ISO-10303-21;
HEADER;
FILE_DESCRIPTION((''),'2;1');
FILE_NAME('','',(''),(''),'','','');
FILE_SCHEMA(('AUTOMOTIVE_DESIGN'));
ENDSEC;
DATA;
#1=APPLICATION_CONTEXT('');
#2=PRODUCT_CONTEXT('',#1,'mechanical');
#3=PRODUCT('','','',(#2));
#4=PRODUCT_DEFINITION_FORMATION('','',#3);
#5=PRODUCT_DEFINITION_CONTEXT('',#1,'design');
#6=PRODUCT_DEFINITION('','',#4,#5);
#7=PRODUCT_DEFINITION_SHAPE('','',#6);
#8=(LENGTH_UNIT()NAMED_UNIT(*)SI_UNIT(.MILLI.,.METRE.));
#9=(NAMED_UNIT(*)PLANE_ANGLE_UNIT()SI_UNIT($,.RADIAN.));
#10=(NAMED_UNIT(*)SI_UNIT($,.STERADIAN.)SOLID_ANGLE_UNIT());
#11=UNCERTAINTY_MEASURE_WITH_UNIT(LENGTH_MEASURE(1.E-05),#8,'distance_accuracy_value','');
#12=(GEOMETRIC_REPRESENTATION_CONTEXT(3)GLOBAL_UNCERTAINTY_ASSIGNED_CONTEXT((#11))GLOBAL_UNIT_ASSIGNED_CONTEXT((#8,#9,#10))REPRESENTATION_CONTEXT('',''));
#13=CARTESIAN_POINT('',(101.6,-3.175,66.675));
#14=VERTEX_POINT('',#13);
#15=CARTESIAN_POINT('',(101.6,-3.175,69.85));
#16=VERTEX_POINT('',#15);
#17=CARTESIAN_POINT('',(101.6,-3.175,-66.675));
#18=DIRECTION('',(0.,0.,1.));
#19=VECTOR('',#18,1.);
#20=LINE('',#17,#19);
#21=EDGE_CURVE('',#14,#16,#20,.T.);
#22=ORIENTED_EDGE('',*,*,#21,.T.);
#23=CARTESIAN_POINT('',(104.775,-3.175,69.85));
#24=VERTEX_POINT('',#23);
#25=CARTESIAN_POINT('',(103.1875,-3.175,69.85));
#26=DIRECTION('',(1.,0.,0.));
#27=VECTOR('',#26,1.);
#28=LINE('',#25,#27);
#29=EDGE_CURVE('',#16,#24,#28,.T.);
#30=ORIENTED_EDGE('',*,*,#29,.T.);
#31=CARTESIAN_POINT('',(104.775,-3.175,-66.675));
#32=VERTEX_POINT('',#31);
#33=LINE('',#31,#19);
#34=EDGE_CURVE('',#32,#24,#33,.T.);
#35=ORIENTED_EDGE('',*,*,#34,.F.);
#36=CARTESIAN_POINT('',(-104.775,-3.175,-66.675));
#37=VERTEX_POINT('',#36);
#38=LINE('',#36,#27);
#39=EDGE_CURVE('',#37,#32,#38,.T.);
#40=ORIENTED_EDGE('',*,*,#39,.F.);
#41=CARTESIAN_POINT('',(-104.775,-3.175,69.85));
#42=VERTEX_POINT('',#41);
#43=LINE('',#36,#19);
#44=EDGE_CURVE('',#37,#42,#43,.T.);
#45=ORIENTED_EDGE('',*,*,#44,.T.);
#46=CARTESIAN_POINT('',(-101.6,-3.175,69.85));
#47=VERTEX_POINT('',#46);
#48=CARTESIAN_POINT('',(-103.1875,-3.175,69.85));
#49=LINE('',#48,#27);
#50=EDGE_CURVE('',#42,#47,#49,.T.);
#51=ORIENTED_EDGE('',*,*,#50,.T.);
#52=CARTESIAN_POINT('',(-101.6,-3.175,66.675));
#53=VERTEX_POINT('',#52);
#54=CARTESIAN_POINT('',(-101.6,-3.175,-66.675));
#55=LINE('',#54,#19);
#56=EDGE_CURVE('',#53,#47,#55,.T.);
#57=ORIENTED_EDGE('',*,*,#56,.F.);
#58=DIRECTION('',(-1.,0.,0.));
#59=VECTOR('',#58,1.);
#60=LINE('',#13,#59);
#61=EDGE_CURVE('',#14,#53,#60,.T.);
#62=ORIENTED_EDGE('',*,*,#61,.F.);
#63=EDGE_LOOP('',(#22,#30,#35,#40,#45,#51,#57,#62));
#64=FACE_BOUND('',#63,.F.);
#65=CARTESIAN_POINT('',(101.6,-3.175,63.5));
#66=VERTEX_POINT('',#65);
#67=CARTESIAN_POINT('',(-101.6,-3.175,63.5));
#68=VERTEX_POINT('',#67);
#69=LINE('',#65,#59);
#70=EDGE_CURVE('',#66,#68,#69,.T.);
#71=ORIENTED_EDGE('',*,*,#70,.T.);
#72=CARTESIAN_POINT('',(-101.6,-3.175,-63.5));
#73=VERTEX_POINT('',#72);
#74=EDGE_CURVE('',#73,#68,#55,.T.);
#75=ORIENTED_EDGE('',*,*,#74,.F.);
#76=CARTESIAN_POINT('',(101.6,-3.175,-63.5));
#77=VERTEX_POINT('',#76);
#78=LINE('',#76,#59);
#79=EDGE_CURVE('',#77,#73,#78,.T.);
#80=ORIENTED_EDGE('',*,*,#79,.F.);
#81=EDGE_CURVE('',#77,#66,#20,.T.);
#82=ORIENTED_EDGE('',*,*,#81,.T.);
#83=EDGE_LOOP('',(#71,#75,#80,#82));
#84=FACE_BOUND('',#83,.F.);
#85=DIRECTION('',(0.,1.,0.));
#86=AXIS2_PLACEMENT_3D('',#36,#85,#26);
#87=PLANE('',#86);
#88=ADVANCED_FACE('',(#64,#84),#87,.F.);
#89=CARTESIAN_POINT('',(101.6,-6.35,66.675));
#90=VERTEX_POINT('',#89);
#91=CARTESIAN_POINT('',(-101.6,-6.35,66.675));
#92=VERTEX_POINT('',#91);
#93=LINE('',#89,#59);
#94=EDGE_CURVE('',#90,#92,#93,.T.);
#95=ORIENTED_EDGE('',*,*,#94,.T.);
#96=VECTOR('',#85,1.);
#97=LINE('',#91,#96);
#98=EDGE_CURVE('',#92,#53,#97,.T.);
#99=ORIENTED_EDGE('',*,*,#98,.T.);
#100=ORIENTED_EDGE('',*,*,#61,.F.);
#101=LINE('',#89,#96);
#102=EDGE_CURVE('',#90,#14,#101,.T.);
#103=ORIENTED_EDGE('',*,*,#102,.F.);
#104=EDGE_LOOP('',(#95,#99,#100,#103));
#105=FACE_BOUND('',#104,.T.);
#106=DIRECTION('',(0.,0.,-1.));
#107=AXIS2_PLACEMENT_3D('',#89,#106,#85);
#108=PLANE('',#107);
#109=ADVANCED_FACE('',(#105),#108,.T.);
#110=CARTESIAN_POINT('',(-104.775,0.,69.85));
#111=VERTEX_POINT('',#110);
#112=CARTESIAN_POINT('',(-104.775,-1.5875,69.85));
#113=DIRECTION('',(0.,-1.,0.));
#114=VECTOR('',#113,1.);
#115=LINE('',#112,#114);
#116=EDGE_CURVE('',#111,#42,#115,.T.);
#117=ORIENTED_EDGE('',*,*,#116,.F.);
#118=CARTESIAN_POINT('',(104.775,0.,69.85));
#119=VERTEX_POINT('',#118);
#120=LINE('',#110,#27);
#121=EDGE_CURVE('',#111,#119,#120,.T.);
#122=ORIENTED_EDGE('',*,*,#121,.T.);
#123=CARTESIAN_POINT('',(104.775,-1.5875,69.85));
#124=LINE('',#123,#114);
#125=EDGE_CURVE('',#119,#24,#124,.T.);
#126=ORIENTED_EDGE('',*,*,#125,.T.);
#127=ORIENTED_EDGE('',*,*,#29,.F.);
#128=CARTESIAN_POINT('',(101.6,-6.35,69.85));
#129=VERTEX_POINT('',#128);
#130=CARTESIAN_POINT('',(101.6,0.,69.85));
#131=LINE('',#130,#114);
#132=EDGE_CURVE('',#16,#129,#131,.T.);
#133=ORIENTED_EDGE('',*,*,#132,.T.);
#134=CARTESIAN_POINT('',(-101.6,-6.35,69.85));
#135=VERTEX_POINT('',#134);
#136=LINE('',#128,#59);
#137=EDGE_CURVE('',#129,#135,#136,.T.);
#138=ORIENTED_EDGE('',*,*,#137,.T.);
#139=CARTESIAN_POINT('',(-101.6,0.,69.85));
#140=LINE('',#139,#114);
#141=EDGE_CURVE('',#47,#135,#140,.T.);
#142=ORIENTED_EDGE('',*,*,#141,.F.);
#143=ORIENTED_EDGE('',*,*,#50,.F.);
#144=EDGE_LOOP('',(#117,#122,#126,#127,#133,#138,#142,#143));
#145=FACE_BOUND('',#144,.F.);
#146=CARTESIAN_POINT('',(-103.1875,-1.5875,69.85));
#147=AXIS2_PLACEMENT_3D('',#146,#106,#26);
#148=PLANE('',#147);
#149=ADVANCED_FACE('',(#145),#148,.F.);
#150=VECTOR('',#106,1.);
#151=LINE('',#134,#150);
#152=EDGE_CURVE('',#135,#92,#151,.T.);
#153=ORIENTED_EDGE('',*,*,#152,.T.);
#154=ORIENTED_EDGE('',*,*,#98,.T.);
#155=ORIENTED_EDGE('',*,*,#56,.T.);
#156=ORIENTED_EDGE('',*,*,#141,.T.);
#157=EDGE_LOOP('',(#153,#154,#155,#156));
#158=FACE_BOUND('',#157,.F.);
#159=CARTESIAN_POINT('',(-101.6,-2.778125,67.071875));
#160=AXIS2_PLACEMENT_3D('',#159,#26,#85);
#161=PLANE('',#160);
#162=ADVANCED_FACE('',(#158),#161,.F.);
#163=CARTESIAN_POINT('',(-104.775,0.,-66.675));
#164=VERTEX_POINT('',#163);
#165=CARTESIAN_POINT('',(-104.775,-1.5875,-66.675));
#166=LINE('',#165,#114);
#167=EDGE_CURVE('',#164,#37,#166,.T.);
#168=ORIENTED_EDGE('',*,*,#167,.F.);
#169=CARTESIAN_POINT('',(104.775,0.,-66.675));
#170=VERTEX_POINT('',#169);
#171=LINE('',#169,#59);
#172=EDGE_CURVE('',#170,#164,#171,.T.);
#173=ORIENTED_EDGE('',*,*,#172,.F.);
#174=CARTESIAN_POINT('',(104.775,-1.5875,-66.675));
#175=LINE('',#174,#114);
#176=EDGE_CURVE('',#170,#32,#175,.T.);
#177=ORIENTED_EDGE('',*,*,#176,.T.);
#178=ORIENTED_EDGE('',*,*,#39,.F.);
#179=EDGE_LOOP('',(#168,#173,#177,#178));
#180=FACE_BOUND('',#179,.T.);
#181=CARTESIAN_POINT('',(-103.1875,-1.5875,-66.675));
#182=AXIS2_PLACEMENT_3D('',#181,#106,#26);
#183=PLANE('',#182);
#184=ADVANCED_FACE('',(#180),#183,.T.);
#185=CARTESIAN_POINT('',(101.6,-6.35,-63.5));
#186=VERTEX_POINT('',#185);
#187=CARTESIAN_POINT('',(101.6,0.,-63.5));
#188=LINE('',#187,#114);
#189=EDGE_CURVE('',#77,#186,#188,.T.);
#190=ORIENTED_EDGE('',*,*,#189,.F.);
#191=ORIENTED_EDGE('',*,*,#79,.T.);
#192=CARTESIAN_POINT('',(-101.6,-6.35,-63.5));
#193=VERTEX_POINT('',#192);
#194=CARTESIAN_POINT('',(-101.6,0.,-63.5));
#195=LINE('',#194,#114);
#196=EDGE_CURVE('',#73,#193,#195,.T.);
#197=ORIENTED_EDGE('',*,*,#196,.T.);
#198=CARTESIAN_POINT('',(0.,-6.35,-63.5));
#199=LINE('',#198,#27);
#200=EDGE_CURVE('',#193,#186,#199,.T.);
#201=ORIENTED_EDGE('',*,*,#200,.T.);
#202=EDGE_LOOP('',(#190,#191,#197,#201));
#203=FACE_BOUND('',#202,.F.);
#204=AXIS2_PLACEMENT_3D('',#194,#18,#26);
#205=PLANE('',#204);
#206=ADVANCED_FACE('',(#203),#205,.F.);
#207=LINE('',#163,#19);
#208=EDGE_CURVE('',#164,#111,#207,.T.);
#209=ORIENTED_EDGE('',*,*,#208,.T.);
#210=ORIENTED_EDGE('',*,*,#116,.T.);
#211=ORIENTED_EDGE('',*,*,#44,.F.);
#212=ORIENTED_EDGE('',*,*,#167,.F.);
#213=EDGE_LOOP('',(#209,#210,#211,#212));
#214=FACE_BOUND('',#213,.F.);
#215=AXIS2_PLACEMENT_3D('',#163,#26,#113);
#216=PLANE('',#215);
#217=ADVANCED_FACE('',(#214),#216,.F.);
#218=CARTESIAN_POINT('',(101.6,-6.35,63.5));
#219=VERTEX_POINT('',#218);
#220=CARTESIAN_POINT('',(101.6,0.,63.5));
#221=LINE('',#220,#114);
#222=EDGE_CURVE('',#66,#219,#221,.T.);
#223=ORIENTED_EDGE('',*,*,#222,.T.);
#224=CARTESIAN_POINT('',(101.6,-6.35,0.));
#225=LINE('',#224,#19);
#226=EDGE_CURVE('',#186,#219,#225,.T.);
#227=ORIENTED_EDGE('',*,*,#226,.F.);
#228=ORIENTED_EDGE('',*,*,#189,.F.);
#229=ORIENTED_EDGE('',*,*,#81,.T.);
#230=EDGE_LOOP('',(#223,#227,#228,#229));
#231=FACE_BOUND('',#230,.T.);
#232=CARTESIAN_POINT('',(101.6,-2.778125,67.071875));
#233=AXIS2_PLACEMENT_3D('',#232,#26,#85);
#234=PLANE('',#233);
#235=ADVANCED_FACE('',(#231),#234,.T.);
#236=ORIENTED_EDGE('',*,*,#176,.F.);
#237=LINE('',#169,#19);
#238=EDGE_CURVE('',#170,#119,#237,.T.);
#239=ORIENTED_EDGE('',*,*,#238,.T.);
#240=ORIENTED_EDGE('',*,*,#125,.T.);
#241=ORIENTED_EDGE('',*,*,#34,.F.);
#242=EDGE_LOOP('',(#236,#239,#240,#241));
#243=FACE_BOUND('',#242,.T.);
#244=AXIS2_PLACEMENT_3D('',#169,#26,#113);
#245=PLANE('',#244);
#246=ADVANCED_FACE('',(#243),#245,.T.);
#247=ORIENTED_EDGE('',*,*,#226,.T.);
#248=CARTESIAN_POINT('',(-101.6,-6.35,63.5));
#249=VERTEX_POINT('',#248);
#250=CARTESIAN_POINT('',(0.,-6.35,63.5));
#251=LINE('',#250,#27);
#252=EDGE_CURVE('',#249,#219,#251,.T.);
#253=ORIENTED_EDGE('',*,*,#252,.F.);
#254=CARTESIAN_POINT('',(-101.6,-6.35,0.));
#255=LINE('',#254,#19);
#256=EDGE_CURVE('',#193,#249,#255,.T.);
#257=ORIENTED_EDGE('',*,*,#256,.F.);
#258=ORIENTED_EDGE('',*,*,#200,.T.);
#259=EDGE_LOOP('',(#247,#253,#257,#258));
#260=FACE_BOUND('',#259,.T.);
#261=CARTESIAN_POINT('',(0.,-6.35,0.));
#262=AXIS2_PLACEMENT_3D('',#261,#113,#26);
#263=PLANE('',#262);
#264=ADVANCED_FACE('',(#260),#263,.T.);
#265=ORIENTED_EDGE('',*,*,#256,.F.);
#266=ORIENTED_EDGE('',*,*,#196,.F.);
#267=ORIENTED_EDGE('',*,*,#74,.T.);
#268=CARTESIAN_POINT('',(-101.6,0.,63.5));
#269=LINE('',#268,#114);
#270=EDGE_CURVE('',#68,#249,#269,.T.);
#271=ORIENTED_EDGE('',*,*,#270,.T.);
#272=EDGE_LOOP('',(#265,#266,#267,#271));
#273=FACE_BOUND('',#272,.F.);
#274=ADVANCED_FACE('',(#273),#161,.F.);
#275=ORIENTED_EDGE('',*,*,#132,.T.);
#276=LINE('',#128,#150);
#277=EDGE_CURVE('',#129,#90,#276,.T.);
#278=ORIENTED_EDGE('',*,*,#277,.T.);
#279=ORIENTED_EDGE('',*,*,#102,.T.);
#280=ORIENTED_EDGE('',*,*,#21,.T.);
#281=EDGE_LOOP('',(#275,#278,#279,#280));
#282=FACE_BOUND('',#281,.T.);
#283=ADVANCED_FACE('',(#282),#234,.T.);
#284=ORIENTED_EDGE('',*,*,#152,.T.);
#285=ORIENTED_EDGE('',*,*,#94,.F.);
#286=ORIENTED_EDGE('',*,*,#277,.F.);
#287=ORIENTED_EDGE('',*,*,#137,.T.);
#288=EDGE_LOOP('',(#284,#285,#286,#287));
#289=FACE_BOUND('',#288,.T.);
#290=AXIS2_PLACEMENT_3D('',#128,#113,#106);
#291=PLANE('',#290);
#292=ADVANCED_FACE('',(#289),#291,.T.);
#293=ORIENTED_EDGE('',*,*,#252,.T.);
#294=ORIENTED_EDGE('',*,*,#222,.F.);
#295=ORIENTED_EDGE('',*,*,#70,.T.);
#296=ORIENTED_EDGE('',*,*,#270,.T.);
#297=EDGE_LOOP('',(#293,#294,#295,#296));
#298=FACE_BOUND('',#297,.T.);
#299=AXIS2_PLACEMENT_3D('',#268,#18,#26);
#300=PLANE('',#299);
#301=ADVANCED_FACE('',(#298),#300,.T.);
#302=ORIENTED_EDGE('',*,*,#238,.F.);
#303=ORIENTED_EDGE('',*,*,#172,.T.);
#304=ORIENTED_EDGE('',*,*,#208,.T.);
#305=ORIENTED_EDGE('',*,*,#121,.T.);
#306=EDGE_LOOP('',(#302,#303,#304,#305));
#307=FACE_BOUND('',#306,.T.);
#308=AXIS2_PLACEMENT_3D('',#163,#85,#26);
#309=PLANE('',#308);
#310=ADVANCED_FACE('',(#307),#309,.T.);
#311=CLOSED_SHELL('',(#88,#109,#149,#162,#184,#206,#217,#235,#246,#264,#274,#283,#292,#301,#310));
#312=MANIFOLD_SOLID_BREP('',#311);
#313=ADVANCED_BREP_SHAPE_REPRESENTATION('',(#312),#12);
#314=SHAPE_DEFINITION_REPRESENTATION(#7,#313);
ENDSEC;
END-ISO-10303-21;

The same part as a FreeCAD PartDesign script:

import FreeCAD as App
import Part
import Sketcher

V = App.Vector
Q = App.Units.Quantity

doc = App.newDocument("Part")
params = doc.addObject("Spreadsheet::Sheet", "Params")
for row, (alias, value) in enumerate([
    ("sketch1_width", "8 in"),
    ("sketch1_height", "5 in"),
    ("pad1_length", "0.25 in"),
    ("sketch2_width", "0.25 in"),
    ("pad2_length", "8 in"),
    ("sketch3_width", "0.125 in"),
    ("pad3_length", "5.375 in"),
], start=1):
    params.set(f"A{row}", alias)
    params.set(f"B{row}", "=" + value)
    params.setAlias(f"B{row}", alias)

body = doc.addObject("PartDesign::Body", "Body")

# Sketch on XZ plane
sketch1 = doc.addObject("Sketcher::SketchObject", "Sketch")
body.addObject(sketch1)
sketch1.AttachmentSupport = (doc.XZ_Plane, [""])
sketch1.MapMode = "FlatFace"
sketch1.addGeometry([
    Part.LineSegment(V(-102, 64, 0), V(-102, -64, 0)),
    Part.LineSegment(V(-102, -64, 0), V(102, -64, 0)),
    Part.LineSegment(V(102, -64, 0), V(102, 64, 0)),
    Part.LineSegment(V(102, 64, 0), V(-102, 64, 0)),
], False)
sketch1.addConstraint([
    Sketcher.Constraint("Coincident", 0, 2, 1, 1),
    Sketcher.Constraint("Coincident", 1, 2, 2, 1),
    Sketcher.Constraint("Coincident", 2, 2, 3, 1),
    Sketcher.Constraint("Coincident", 3, 2, 0, 1),
    Sketcher.Constraint("Vertical", 0),
    Sketcher.Constraint("Horizontal", 1),
    Sketcher.Constraint("Vertical", 2),
    Sketcher.Constraint("Horizontal", 3),
    Sketcher.Constraint("Symmetric", 0, 2, 2, 2, -1, 1),
    Sketcher.Constraint("DistanceX", 1, 1, 1, 2, Q("8 in")),
    Sketcher.Constraint("DistanceY", 0, 2, 0, 1, Q("5 in")),
])
sketch1.setExpression("Constraints[9]", "Params.sketch1_width")
sketch1.setExpression("Constraints[10]", "Params.sketch1_height")
pad1 = doc.addObject("PartDesign::Pad", "Pad")
body.addObject(pad1)
pad1.Profile = sketch1
pad1.setExpression("Length", "Params.pad1_length")

# Sketch on YZ plane
sketch2 = doc.addObject("Sketcher::SketchObject", "Sketch001")
body.addObject(sketch2)
sketch2.AttachmentSupport = (doc.YZ_Plane, [""])
sketch2.MapMode = "FlatFace"
sketch2.AttachmentOffset = App.Placement(V(0, 0, 4 * 25.4), App.Rotation())
sketch2.addGeometry([
    Part.LineSegment(V(-3.2, 63.5, 0), V(0, 63.5, 0)),  # 0
    Part.LineSegment(V(0, 63.5, 0), V(0, 69.8, 0)),  # 1
    Part.LineSegment(V(0, 69.8, 0), V(-6.3, 69.8, 0)),  # 2
    Part.LineSegment(V(-6.3, 69.8, 0), V(-6.3, 66.7, 0)),  # 3
    Part.LineSegment(V(-6.3, 66.7, 0), V(-3.2, 66.7, 0)),  # 4
    Part.LineSegment(V(-3.2, 66.7, 0), V(-3.2, 63.5, 0)),  # 5
    Part.LineSegment(V(-3.2, -63.5, 0), V(-3.2, -66.7, 0)),  # 6
    Part.LineSegment(V(-3.2, -66.7, 0), V(0, -66.7, 0)),  # 7
    Part.LineSegment(V(0, -66.7, 0), V(0, -63.5, 0)),  # 8
    Part.LineSegment(V(0, -63.5, 0), V(-3.2, -63.5, 0)),  # 9
], False)
sketch2.addConstraint([
    Sketcher.Constraint("Coincident", 0, 2, 1, 1),
    Sketcher.Constraint("Coincident", 1, 2, 2, 1),
    Sketcher.Constraint("Coincident", 2, 2, 3, 1),
    Sketcher.Constraint("Coincident", 3, 2, 4, 1),
    Sketcher.Constraint("Coincident", 4, 2, 5, 1),
    Sketcher.Constraint("Coincident", 5, 2, 0, 1),
    Sketcher.Constraint("Coincident", 6, 2, 7, 1),
    Sketcher.Constraint("Coincident", 7, 2, 8, 1),
    Sketcher.Constraint("Coincident", 8, 2, 9, 1),
    Sketcher.Constraint("Coincident", 9, 2, 6, 1),
    Sketcher.Constraint("Horizontal", 0),
    Sketcher.Constraint("Vertical", 1),
    Sketcher.Constraint("Horizontal", 2),
    Sketcher.Constraint("Vertical", 3),
    Sketcher.Constraint("Horizontal", 4),
    Sketcher.Constraint("Vertical", 5),
    Sketcher.Constraint("Vertical", 6),
    Sketcher.Constraint("Horizontal", 7),
    Sketcher.Constraint("Vertical", 8),
    Sketcher.Constraint("Horizontal", 9),
    Sketcher.Constraint("Symmetric", 0, 2, 8, 2, -1, 1),
    Sketcher.Constraint("Symmetric", 4, 2, 6, 2, -1),
    Sketcher.Constraint("PointOnObject", 0, 2, -2),
    Sketcher.Constraint("Equal", 0, 4),
    Sketcher.Constraint("Equal", 2, 1),
    Sketcher.Constraint("Equal", 9, 3),
    Sketcher.Constraint("DistanceY", 8, 2, 0, 2, Q("5 in")),
    Sketcher.Constraint("DistanceX", 2, 2, 2, 1, Q("0.25 in")),
])
sketch2.setExpression("Constraints[27]", "Params.sketch2_width")
pad2 = doc.addObject("PartDesign::Pad", "Pad001")
body.addObject(pad2)
pad2.Profile = sketch2
pad2.setExpression("Length", "Params.pad2_length")
pad2.Reversed = True

# Sketch on XY plane
sketch3 = doc.addObject("Sketcher::SketchObject", "Sketch002")
body.addObject(sketch3)
sketch3.AttachmentSupport = (doc.XY_Plane, [""])
sketch3.MapMode = "FlatFace"
sketch3.AttachmentOffset = App.Placement(V(0, 0, -2.625 * 25.4), App.Rotation())
sketch3.addGeometry([
    Part.LineSegment(V(-104.8, -3.2, 0), V(-104.8, 0, 0)),  # 0
    Part.LineSegment(V(-104.8, 0, 0), V(-101.6, 0, 0)),  # 1
    Part.LineSegment(V(-101.6, 0, 0), V(-101.6, -3.2, 0)),  # 2
    Part.LineSegment(V(-101.6, -3.2, 0), V(-104.8, -3.2, 0)),  # 3
    Part.LineSegment(V(101.6, -3.2, 0), V(101.6, 0, 0)),  # 4
    Part.LineSegment(V(101.6, 0, 0), V(104.8, 0, 0)),  # 5
    Part.LineSegment(V(104.8, 0, 0), V(104.8, -3.2, 0)),  # 6
    Part.LineSegment(V(104.8, -3.2, 0), V(101.6, -3.2, 0)),  # 7
], False)
sketch3.addConstraint([
    Sketcher.Constraint("Coincident", 0, 2, 1, 1),
    Sketcher.Constraint("Coincident", 1, 2, 2, 1),
    Sketcher.Constraint("Coincident", 2, 2, 3, 1),
    Sketcher.Constraint("Coincident", 3, 2, 0, 1),
    Sketcher.Constraint("Coincident", 4, 2, 5, 1),
    Sketcher.Constraint("Coincident", 5, 2, 6, 1),
    Sketcher.Constraint("Coincident", 6, 2, 7, 1),
    Sketcher.Constraint("Coincident", 7, 2, 4, 1),
    Sketcher.Constraint("Vertical", 0),
    Sketcher.Constraint("Horizontal", 1),
    Sketcher.Constraint("Vertical", 2),
    Sketcher.Constraint("Horizontal", 3),
    Sketcher.Constraint("Vertical", 4),
    Sketcher.Constraint("Horizontal", 5),
    Sketcher.Constraint("Vertical", 6),
    Sketcher.Constraint("Horizontal", 7),
    Sketcher.Constraint("Symmetric", 1, 2, 4, 2, -1, 1),
    Sketcher.Constraint("Symmetric", 0, 2, 5, 2, -2),
    Sketcher.Constraint("Horizontal", 3, 2, 6, 2),
    Sketcher.Constraint("Equal", 7, 0),
    Sketcher.Constraint("DistanceX", 1, 2, -1, 1, Q("4 in")),
    Sketcher.Constraint("DistanceX", 1, 1, 1, 2, Q("0.125 in")),
])
sketch3.setExpression("Constraints[21]", "Params.sketch3_width")
pad3 = doc.addObject("PartDesign::Pad", "Pad002")
body.addObject(pad3)
pad3.Profile = sketch3
pad3.setExpression("Length", "Params.pad3_length")

doc.recompute()
